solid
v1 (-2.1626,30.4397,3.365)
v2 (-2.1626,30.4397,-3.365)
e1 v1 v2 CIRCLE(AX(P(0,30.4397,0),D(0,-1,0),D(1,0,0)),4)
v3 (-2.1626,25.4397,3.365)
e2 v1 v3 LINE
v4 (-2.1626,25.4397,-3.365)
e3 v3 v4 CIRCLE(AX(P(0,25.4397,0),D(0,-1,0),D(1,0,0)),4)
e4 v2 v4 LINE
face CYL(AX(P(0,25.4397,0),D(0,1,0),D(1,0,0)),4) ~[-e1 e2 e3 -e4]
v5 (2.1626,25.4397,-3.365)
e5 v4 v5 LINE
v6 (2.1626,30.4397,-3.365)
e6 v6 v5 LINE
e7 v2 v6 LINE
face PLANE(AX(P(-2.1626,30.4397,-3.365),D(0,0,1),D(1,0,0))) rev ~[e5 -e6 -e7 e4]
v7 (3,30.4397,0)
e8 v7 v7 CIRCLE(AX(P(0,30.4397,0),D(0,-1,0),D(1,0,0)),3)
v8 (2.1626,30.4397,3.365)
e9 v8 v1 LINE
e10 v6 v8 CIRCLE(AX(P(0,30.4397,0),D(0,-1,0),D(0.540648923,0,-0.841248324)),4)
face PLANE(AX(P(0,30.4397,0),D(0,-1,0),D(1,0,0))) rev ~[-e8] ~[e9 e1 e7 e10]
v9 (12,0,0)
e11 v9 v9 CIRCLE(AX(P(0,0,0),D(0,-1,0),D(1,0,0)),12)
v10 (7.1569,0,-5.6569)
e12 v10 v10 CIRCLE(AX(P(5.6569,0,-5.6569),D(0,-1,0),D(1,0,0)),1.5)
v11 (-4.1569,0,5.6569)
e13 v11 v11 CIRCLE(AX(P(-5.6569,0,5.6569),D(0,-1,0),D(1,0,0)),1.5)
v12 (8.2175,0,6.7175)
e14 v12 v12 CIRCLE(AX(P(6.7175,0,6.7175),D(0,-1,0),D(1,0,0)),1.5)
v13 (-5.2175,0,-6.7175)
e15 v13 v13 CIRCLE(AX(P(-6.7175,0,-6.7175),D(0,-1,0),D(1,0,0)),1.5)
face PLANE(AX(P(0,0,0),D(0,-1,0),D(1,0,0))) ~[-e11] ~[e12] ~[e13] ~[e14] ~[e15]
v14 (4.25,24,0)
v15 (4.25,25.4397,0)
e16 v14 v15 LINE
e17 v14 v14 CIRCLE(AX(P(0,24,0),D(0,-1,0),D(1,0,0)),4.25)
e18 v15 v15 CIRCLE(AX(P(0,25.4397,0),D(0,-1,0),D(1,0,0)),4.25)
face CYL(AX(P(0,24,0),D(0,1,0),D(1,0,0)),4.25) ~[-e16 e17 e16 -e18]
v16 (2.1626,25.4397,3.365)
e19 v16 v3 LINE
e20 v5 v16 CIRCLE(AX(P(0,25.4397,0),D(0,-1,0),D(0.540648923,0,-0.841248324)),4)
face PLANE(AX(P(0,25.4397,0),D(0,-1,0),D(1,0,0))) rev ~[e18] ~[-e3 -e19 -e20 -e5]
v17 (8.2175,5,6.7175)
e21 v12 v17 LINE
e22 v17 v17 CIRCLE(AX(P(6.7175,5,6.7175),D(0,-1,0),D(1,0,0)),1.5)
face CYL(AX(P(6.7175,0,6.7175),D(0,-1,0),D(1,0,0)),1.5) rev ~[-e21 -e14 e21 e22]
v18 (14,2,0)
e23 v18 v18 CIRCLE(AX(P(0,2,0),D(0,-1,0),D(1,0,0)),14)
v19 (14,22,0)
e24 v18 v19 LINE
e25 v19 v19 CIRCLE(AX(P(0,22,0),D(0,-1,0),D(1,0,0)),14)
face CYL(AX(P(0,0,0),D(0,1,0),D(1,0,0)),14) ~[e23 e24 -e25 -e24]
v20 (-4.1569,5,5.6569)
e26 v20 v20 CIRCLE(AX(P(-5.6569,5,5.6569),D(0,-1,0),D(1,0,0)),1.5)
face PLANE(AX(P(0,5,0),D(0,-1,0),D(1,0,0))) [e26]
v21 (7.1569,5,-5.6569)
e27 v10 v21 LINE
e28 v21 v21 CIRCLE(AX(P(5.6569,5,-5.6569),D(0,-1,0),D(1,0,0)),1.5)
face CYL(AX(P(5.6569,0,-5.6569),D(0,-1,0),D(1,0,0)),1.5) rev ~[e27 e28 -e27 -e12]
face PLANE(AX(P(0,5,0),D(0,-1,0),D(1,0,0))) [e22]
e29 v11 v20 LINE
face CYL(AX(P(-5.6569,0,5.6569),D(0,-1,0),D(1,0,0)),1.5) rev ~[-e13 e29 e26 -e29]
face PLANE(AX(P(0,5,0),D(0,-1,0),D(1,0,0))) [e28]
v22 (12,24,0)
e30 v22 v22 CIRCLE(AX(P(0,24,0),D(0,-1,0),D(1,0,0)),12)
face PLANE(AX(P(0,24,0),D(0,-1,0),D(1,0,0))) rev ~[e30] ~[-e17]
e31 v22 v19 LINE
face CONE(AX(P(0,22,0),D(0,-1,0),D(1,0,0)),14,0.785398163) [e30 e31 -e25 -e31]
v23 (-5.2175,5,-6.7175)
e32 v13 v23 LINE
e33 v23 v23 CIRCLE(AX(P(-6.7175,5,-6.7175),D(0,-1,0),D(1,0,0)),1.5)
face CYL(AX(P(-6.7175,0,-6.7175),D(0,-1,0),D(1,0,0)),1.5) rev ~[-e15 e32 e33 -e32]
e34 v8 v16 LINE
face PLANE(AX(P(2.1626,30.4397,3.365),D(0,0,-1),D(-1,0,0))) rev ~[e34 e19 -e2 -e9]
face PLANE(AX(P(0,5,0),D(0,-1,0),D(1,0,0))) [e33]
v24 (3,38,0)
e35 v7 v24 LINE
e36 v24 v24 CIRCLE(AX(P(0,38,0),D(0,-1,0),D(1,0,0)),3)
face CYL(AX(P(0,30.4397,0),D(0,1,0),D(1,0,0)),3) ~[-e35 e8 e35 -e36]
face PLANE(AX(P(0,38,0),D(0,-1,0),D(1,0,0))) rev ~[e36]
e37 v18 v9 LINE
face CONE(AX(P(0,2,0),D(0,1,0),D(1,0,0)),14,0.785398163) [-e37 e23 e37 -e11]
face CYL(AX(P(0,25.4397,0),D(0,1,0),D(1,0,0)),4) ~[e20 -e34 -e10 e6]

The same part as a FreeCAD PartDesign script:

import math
import FreeCAD as App
import Part
import Sketcher

V = App.Vector
Q = App.Units.Quantity


def edges_at(feature, points):
    """Names of the edges that pass closest to the given points."""
    edges = feature.Shape.Edges
    near = lambda p: min(range(len(edges)), key=lambda i: edges[i].distToShape(Part.Vertex(*p))[0])
    return sorted({f"Edge{near(p) + 1}" for p in points})


def add_polygon(sketch, points):
    """Adds a closed chain of lines whose ends are joined by coincident constraints."""
    first, n = sketch.GeometryCount, len(points)
    for a, b in zip(points, points[1:] + points[:1]):
        sketch.addGeometry(Part.LineSegment(App.Vector(*a, 0), App.Vector(*b, 0)), False)
    for i in range(n):
        sketch.addConstraint(Sketcher.Constraint("Coincident", first + i, 2, first + (i + 1) % n, 1))

doc = App.newDocument("Part")
body = doc.addObject("PartDesign::Body", "Body")

# Sketch on XY plane
sketch1 = body.newObject("Sketcher::SketchObject", "Sketch")
sketch1.AttachmentSupport = (doc.getObject("XY_Plane"), [""])
sketch1.MapMode = "FlatFace"
add_polygon(sketch1, [(0, 38), (0, 0), (14, 0), (14, 24), (4.25, 24), (4.25, 25.4397), (4, 25.4397), (4, 30.4397), (3, 30.4397), (3, 38)])  # lines 0-9
sketch1.addConstraint([
    Sketcher.Constraint("Vertical", 0),
    Sketcher.Constraint("Horizontal", 1),
    Sketcher.Constraint("Vertical", 2),
    Sketcher.Constraint("Horizontal", 3),
    Sketcher.Constraint("Vertical", 4),
    Sketcher.Constraint("Horizontal", 5),
    Sketcher.Constraint("Vertical", 6),
    Sketcher.Constraint("Horizontal", 7),
    Sketcher.Constraint("Vertical", 8),
    Sketcher.Constraint("Horizontal", 9),
    Sketcher.Constraint("Coincident", 0, 2, -1, 1),
    Sketcher.Constraint("DistanceY", 0, 2, 0, 1, Q("38 mm")),
    Sketcher.Constraint("DistanceY", 2, 1, 2, 2, Q("24 mm")),
    Sketcher.Constraint("DistanceY", 6, 1, 6, 2, Q("5 mm")),
    Sketcher.Constraint("DistanceX", 1, 1, 1, 2, Q("14 mm")),
    Sketcher.Constraint("DistanceX", 7, 2, 7, 1, Q("1 mm")),
    Sketcher.Constraint("DistanceX", 9, 2, 9, 1, Q("3 mm")),
    Sketcher.Constraint("DistanceX", 3, 2, 3, 1, Q("9.75 mm")),
    Sketcher.Constraint("DistanceY", 4, 1, 4, 2, Q("1.4397 mm")),
])
revolution = body.newObject("PartDesign::Revolution", "Revolution")
revolution.Profile = sketch1
revolution.ReferenceAxis = (sketch1, ["V_Axis"])
revolution.Angle = 360
doc.recompute()

chamfer = body.newObject("PartDesign::Chamfer", "Chamfer")
chamfer.Base = (revolution, edges_at(revolution, [(-14, 0, 0), (-14, 24, 0)]))
chamfer.Size = 2

# Sketch on XZ plane
sketch2 = body.newObject("Sketcher::SketchObject", "Sketch001")
sketch2.AttachmentSupport = (doc.getObject("XZ_Plane"), [""])
sketch2.MapMode = "FlatFace"
sketch2.AttachmentOffset = App.Placement(V(0, 0, -30.4397), App.Rotation())
sketch2.addGeometry([
    Part.ArcOfCircle(Part.Circle(V(0, 0, 0), V(0, 0, 1), 4), math.radians(-122.727825), math.radians(-57.272175)),
    Part.LineSegment(V(2.1626, -3.365, 0), V(-2.1626, -3.365, 0)),
    Part.LineSegment(V(2.1626, 3.365, 0), V(-2.1626, 3.365, 0)),
    Part.ArcOfCircle(Part.Circle(V(0, 0, 0), V(0, 0, 1), 4), math.radians(57.272175), math.radians(122.727825)),
], False)
sketch2.addConstraint([
    Sketcher.Constraint("Coincident", 0, 1, 1, 2),
    Sketcher.Constraint("Coincident", 1, 1, 0, 2),
    Sketcher.Constraint("Coincident", 2, 1, 3, 1),
    Sketcher.Constraint("Coincident", 3, 2, 2, 2),
    Sketcher.Constraint("Horizontal", 1),
    Sketcher.Constraint("Horizontal", 2),
    Sketcher.Constraint("Coincident", 0, 3, -1, 1),
    Sketcher.Constraint("Coincident", 3, 3, -1, 1),
    Sketcher.Constraint("Equal", 0, 3),
    Sketcher.Constraint("Vertical", 1, 1, 2, 1),
    Sketcher.Constraint("Radius", 0, Q("4 mm")),
    Sketcher.Constraint("DistanceY", 1, 1, 2, 1, Q("6.73 mm")),
])
pocket1 = body.newObject("PartDesign::Pocket", "Pocket")
pocket1.Profile = sketch2
pocket1.Length = 5
pocket1.Reversed = True

# Sketch on XZ plane
sketch3 = body.newObject("Sketcher::SketchObject", "Sketch002")
sketch3.AttachmentSupport = (doc.getObject("XZ_Plane"), [""])
sketch3.MapMode = "FlatFace"
sketch3.addGeometry([
    Part.Circle(V(6.7175, 6.7175, 0), V(0, 0, 1), 1.5),
    Part.Circle(V(-6.7175, -6.7175, 0), V(0, 0, 1), 1.5),
    Part.Circle(V(-5.6569, 5.6569, 0), V(0, 0, 1), 1.5),
    Part.Circle(V(5.6569, -5.6569, 0), V(0, 0, 1), 1.5),
], False)
sketch3.addConstraint([
    Sketcher.Constraint("Equal", 0, 1),
    Sketcher.Constraint("Equal", 1, 2),
    Sketcher.Constraint("Equal", 2, 3),
    Sketcher.Constraint("Symmetric", 0, 3, 1, 3, -1, 1),
    Sketcher.Constraint("Symmetric", 2, 3, 3, 3, -1, 1),
    Sketcher.Constraint("Diameter", 0, Q("3 mm")),
    Sketcher.Constraint("DistanceX", 2, 3, -1, 1, Q("5.657 mm")),
    Sketcher.Constraint("DistanceY", -1, 1, 2, 3, Q("5.657 mm")),
    Sketcher.Constraint("DistanceX", 1, 3, 0, 3, Q("13.435 mm")),
    Sketcher.Constraint("DistanceY", 1, 3, 0, 3, Q("13.435 mm")),
])
pocket2 = body.newObject("PartDesign::Pocket", "Pocket001")
pocket2.Profile = sketch3
pocket2.Length = 5

doc.recompute()
